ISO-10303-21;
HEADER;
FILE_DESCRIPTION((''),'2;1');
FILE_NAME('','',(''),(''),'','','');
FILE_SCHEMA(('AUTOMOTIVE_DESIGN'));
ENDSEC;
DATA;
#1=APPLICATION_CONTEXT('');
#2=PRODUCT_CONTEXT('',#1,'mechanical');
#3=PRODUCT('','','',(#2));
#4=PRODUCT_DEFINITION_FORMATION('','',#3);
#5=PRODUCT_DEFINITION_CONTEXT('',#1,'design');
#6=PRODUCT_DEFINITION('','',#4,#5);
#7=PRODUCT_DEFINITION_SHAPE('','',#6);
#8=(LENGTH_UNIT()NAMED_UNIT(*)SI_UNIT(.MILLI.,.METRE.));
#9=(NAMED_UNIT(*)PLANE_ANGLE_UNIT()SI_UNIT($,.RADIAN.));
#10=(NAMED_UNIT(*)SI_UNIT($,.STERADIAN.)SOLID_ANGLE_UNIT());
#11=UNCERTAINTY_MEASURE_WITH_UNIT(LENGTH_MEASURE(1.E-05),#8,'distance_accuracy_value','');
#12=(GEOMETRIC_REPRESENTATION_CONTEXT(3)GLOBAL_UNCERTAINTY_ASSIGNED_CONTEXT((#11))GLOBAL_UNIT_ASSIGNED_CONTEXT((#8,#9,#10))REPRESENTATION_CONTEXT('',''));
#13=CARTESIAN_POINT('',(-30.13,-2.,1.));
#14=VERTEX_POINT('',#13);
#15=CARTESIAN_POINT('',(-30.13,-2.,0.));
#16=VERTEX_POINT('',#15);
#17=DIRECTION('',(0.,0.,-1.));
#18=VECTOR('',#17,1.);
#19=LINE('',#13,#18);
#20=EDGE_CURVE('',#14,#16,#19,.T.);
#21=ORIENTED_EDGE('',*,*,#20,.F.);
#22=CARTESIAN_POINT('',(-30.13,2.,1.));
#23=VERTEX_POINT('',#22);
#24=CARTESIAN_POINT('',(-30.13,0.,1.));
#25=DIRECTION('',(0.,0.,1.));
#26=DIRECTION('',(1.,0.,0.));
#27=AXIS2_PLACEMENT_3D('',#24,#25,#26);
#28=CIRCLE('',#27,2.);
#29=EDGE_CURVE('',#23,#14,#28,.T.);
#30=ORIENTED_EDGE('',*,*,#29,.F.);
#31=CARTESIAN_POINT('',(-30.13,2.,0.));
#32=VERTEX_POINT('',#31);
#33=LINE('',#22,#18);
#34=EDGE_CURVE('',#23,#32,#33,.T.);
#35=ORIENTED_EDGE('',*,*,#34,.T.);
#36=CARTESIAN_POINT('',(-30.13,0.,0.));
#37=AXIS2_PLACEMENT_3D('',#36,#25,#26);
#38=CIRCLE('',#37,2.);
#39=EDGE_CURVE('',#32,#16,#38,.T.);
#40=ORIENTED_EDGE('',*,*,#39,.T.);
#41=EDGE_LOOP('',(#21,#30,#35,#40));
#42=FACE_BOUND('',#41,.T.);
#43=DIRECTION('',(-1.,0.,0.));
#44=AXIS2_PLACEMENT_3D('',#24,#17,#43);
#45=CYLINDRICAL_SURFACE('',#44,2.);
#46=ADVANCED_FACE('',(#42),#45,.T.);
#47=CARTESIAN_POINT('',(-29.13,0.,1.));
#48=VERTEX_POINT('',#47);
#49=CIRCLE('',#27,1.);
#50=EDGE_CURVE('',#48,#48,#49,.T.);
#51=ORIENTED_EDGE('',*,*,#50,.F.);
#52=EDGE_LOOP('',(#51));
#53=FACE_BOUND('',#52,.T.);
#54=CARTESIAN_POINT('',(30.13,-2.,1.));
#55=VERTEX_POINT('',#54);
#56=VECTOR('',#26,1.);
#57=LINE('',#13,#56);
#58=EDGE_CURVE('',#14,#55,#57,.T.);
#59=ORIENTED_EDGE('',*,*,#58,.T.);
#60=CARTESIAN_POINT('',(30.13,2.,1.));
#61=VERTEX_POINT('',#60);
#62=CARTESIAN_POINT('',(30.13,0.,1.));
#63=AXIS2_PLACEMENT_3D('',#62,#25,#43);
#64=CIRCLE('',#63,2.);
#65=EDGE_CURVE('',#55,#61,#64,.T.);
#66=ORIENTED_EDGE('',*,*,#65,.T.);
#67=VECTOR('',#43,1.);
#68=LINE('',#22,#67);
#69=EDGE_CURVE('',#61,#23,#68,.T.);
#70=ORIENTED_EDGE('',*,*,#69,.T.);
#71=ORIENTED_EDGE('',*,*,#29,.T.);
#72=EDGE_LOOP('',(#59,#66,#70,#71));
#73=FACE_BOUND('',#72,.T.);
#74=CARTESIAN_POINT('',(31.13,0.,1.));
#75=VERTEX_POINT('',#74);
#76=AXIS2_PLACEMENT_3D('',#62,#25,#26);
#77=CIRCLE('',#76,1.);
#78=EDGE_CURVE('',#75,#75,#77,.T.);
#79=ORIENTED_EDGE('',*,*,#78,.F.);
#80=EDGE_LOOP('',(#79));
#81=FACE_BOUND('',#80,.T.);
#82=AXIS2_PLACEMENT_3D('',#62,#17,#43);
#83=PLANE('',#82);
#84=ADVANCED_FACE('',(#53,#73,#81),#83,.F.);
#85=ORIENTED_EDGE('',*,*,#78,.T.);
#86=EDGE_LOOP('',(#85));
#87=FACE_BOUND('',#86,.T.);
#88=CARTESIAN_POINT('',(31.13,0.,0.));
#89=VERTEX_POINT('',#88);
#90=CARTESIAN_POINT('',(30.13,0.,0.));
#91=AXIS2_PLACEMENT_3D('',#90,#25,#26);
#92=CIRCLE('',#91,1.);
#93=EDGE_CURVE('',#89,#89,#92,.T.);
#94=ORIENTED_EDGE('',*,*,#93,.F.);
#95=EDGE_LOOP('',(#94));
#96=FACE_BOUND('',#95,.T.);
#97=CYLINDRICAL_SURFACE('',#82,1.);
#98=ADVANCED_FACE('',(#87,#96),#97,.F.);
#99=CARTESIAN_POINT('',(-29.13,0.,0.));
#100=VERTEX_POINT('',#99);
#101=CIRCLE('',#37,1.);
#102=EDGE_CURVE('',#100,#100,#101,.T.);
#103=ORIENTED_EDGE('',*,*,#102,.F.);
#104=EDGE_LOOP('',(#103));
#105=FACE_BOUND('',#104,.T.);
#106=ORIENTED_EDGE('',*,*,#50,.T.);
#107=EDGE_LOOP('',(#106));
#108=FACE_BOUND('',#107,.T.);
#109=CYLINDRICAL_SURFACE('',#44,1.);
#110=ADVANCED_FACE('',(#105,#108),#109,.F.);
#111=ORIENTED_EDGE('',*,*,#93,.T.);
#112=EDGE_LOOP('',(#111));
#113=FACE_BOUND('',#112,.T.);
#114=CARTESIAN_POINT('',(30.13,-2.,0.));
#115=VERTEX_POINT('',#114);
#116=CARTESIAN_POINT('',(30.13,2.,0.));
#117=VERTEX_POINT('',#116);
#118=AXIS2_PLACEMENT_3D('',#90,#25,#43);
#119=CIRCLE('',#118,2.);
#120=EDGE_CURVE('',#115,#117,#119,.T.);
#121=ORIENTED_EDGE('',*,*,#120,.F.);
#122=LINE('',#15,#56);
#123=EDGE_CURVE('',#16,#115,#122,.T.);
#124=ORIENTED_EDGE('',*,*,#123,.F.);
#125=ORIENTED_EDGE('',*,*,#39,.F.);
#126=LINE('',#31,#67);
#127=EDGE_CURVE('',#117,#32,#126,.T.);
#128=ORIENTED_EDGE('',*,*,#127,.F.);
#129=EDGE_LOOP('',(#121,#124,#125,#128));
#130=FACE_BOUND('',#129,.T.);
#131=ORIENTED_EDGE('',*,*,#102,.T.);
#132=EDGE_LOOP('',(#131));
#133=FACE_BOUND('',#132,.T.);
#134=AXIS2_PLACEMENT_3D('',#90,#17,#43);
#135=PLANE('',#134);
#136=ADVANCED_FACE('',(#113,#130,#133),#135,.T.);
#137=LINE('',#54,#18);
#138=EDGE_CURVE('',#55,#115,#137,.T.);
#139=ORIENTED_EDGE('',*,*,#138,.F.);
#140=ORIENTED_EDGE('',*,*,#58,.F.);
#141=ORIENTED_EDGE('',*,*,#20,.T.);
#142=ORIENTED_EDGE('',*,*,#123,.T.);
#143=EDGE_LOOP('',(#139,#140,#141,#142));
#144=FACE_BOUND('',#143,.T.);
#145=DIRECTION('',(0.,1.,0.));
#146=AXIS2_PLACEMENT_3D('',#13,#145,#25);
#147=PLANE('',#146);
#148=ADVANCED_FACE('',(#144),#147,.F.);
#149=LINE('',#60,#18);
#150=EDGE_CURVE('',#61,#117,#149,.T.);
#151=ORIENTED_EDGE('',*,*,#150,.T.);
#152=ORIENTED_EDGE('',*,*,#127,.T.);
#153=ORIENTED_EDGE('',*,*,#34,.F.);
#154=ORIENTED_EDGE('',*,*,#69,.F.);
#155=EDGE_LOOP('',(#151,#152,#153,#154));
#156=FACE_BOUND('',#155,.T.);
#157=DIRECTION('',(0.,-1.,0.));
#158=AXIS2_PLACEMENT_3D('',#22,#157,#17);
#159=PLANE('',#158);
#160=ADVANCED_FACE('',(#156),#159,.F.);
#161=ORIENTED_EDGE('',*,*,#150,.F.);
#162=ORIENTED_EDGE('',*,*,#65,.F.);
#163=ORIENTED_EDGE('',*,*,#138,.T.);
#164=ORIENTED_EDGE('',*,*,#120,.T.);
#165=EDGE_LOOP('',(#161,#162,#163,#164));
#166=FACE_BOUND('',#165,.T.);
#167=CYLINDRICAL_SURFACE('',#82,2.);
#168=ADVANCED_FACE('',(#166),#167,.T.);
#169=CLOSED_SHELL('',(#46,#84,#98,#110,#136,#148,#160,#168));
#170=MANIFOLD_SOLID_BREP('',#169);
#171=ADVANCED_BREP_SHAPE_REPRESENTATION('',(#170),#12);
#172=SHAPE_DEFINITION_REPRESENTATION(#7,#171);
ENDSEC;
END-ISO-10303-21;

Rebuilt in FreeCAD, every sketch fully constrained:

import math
import FreeCAD as App
import Part
import Sketcher

doc = App.newDocument("Part")
params = doc.addObject("Spreadsheet::Sheet", "Params")
for row, (alias, value) in enumerate([
    ("sketch1_diameter", "2 mm"),
    ("sketch1_radius", "2 mm"),
    ("sketch1_width", "60.26 mm"),
    ("pad1_length", "1 mm"),
], start=1):
    params.set(f"A{row}", alias)
    params.set(f"B{row}", "=" + value)
    params.setAlias(f"B{row}", alias)

body = doc.addObject("PartDesign::Body", "Body")

# Sketch on XY plane
sketch1 = body.newObject("Sketcher::SketchObject", "Sketch")
sketch1.AttachmentSupport = (doc.getObject("XY_Plane"), [""])
sketch1.MapMode = "FlatFace"
sketch1.addGeometry(Part.LineSegment(App.Vector(30.13, 2, 0), App.Vector(-30.13, 2, 0)), False)
sketch1.addGeometry(Part.ArcOfCircle(Part.Circle(App.Vector(-30.13, 0, 0), App.Vector(0, 0, 1), 2), math.radians(90), math.radians(270)), False)
sketch1.addGeometry(Part.LineSegment(App.Vector(-30.13, -2, 0), App.Vector(30.13, -2, 0)), False)
sketch1.addGeometry(Part.ArcOfCircle(Part.Circle(App.Vector(30.13, 0, 0), App.Vector(0, 0, 1), 2), math.radians(-90), math.radians(90)), False)
sketch1.addGeometry(Part.Circle(App.Vector(30.13, 0, 0), App.Vector(0, 0, 1), 1), False)
sketch1.addGeometry(Part.Circle(App.Vector(-30.13, 0, 0), App.Vector(0, 0, 1), 1), False)
sketch1.addConstraint(Sketcher.Constraint("Tangent", 0, 2, 1, 1))
sketch1.addConstraint(Sketcher.Constraint("Tangent", 1, 2, 2, 1))
sketch1.addConstraint(Sketcher.Constraint("Tangent", 2, 2, 3, 1))
sketch1.addConstraint(Sketcher.Constraint("Tangent", 3, 2, 0, 1))
sketch1.addConstraint(Sketcher.Constraint("Horizontal", 0))
sketch1.addConstraint(Sketcher.Constraint("Horizontal", 2))
sketch1.addConstraint(Sketcher.Constraint("Coincident", 4, 3, 3, 3))
sketch1.addConstraint(Sketcher.Constraint("Coincident", 5, 3, 1, 3))
sketch1.addConstraint(Sketcher.Constraint("Equal", 4, 5))
sketch1.addConstraint(Sketcher.Constraint("Symmetric", 1, 3, 3, 3, -1, 1))
sketch1.addConstraint(Sketcher.Constraint("Diameter", 4, 2.0))
sketch1.addConstraint(Sketcher.Constraint("Radius", 1, 2.0))
sketch1.addConstraint(Sketcher.Constraint("DistanceX", 0, 2, 0, 1, 60.26))
sketch1.setExpression("Constraints[10]", "Params.sketch1_diameter")
sketch1.setExpression("Constraints[11]", "Params.sketch1_radius")
sketch1.setExpression("Constraints[12]", "Params.sketch1_width")
pad1 = body.newObject("PartDesign::Pad", "Pad")
pad1.Profile = sketch1
pad1.setExpression("Length", "Params.pad1_length")

doc.recompute()
